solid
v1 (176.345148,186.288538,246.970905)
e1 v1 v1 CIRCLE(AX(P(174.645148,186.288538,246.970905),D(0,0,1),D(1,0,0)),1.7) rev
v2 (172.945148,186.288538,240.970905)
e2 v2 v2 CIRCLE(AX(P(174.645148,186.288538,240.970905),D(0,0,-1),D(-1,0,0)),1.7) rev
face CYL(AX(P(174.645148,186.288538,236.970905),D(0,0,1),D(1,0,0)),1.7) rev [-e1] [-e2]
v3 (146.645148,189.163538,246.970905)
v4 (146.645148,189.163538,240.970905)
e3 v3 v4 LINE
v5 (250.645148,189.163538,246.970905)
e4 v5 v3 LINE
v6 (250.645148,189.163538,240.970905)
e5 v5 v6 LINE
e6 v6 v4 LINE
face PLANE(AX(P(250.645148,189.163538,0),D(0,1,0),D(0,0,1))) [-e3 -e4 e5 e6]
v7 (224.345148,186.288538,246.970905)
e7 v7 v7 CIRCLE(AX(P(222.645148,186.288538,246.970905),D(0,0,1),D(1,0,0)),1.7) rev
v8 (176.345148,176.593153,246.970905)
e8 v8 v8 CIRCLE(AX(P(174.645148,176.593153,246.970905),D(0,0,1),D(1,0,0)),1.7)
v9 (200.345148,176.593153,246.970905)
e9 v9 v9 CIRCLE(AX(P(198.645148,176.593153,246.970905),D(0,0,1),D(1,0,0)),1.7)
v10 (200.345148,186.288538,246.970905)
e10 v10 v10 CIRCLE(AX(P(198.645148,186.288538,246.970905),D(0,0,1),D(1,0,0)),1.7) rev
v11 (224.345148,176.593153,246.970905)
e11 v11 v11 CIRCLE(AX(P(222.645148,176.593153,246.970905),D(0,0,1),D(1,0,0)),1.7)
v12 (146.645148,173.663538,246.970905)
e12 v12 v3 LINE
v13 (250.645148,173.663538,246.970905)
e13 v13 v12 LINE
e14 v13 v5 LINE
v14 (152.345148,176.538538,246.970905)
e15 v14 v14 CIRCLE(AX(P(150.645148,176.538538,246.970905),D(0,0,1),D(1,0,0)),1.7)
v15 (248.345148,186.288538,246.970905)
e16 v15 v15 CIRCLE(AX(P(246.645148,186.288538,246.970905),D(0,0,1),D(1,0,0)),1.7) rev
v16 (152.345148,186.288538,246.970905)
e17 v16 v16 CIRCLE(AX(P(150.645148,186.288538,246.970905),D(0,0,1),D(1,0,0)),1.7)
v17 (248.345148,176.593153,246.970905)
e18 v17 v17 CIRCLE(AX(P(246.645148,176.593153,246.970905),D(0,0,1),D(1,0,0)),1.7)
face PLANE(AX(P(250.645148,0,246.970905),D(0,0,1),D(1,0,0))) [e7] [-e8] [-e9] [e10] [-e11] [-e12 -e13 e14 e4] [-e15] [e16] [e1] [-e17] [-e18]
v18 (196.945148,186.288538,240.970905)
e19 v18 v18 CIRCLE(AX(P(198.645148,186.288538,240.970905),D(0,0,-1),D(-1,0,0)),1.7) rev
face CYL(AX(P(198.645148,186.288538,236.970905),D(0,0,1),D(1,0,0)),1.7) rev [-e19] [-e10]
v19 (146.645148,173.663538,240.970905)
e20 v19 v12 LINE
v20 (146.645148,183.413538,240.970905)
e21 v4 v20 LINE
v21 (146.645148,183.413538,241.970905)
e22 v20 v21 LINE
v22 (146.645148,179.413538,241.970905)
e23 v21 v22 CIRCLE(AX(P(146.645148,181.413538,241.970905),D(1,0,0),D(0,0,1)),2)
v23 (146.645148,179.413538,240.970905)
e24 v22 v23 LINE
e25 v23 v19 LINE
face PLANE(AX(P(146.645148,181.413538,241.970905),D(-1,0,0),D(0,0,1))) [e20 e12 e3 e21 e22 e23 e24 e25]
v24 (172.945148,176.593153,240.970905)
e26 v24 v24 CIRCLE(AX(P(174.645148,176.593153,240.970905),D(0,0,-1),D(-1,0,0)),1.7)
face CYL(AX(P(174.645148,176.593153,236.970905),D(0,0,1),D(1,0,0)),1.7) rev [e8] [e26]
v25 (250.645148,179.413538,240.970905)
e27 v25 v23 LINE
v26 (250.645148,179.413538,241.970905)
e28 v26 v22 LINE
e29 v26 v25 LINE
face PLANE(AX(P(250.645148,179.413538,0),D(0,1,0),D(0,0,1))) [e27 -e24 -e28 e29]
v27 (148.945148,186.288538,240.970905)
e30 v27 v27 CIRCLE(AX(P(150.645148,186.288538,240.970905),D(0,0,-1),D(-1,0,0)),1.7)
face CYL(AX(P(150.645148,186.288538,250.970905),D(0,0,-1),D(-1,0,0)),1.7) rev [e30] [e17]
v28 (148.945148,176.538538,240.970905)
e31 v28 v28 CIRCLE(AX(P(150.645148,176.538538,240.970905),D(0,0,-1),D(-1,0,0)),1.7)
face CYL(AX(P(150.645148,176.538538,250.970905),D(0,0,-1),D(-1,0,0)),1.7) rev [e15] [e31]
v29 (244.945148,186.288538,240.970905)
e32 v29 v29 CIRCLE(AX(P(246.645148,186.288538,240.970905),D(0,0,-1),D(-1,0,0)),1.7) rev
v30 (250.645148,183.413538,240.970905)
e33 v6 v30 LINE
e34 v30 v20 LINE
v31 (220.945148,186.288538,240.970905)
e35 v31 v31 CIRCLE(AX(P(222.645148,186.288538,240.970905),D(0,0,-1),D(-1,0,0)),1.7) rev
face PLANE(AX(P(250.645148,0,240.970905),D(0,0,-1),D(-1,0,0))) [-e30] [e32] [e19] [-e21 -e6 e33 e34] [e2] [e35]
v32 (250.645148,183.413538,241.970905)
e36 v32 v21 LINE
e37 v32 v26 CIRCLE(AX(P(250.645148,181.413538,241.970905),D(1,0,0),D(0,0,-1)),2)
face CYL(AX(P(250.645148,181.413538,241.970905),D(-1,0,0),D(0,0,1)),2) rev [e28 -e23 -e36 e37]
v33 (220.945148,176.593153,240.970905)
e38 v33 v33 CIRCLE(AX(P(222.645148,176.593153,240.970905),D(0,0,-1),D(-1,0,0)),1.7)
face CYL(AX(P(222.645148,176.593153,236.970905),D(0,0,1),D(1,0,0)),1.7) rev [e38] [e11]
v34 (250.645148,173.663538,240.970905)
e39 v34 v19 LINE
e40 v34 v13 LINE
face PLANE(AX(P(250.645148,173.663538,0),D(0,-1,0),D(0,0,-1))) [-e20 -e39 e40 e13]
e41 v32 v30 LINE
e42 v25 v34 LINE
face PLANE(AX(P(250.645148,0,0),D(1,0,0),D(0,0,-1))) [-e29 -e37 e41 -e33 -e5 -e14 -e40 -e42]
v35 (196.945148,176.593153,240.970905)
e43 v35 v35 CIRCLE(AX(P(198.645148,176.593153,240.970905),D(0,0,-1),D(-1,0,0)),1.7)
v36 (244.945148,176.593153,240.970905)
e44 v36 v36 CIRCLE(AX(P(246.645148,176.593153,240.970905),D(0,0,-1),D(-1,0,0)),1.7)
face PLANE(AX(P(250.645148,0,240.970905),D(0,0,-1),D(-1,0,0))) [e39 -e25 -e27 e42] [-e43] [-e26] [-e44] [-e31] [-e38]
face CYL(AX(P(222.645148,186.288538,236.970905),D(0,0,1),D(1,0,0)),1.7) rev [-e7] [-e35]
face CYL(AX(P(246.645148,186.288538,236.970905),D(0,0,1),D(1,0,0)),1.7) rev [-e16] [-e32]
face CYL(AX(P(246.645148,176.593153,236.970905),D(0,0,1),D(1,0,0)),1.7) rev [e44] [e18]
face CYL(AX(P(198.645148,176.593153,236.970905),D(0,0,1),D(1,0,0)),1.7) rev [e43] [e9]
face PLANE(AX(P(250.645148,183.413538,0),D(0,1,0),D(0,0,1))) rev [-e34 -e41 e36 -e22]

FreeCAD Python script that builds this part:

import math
import FreeCAD as App
import Part
import Sketcher
Q = App.Units.Quantity

doc = App.newDocument("Part")
body = doc.addObject("PartDesign::Body", "Body")

# Sketch on YZ plane
sketch1 = body.newObject("Sketcher::SketchObject", "Sketch")
sketch1.AttachmentSupport = (doc.getObject("YZ_Plane"), [""])
sketch1.MapMode = "FlatFace"
sketch1.AttachmentOffset = App.Placement(App.Vector(0, 0, 190.645148), App.Rotation())
sketch1.addGeometry([
    Part.LineSegment(App.Vector(189.2, 241, 0), App.Vector(189.2, 247, 0)),  # 0
    Part.LineSegment(App.Vector(189.2, 247, 0), App.Vector(173.7, 247, 0)),  # 1
    Part.LineSegment(App.Vector(173.7, 247, 0), App.Vector(173.7, 241, 0)),  # 2
    Part.LineSegment(App.Vector(173.7, 241, 0), App.Vector(179.4, 241, 0)),  # 3
    Part.LineSegment(App.Vector(179.4, 241, 0), App.Vector(179.4, 242, 0)),  # 4
    Part.ArcOfCircle(Part.Circle(App.Vector(181.4, 242, 0), App.Vector(0, 0, 1), 2), math.radians(0), math.radians(180)),  # 5
    Part.LineSegment(App.Vector(183.4, 242, 0), App.Vector(183.4, 241, 0)),  # 6
    Part.LineSegment(App.Vector(183.4, 241, 0), App.Vector(189.2, 241, 0)),  # 7
], False)
sketch1.addConstraint([
    Sketcher.Constraint("Coincident", 0, 2, 1, 1),
    Sketcher.Constraint("Coincident", 1, 2, 2, 1),
    Sketcher.Constraint("Coincident", 2, 2, 3, 1),
    Sketcher.Constraint("Coincident", 3, 2, 4, 1),
    Sketcher.Constraint("Tangent", 4, 2, 5, 2),
    Sketcher.Constraint("Tangent", 5, 1, 6, 1),
    Sketcher.Constraint("Coincident", 6, 2, 7, 1),
    Sketcher.Constraint("Coincident", 7, 2, 0, 1),
    Sketcher.Constraint("Vertical", 0),
    Sketcher.Constraint("Horizontal", 1),
    Sketcher.Constraint("Vertical", 2),
    Sketcher.Constraint("Horizontal", 3),
    Sketcher.Constraint("Vertical", 4),
    Sketcher.Constraint("Vertical", 6),
    Sketcher.Constraint("Horizontal", 7),
    Sketcher.Constraint("Horizontal", 3, 2, 6, 2),
    Sketcher.Constraint("Equal", 3, 7),
    Sketcher.Constraint("Radius", 5, Q("2 mm")),
    Sketcher.Constraint("DistanceY", 0, 1, 0, 2, Q("6 mm")),
    Sketcher.Constraint("DistanceY", 4, 1, 4, 2, Q("1 mm")),
    Sketcher.Constraint("DistanceX", 1, 2, 1, 1, Q("15.5 mm")),
    Sketcher.Constraint("DistanceX", -1, 1, 5, 3, Q("181.413538 mm")),
    Sketcher.Constraint("DistanceY", -1, 1, 5, 3, Q("241.970905 mm")),
])
pad1 = body.newObject("PartDesign::Pad", "Pad")
pad1.Profile = sketch1
pad1.Type = "TwoLengths"
pad1.Length = 60
pad1.Length2 = 20

# Sketch on XY plane
sketch2 = body.newObject("Sketcher::SketchObject", "Sketch001")
sketch2.AttachmentSupport = (doc.getObject("XY_Plane"), [""])
sketch2.MapMode = "FlatFace"
sketch2.AttachmentOffset = App.Placement(App.Vector(0, 0, 246.970905), App.Rotation())
sketch2.addGeometry([
    Part.Circle(App.Vector(246.6, 186.3, 0), App.Vector(0, 0, 1), 1.7),  # 0
    Part.Circle(App.Vector(222.6, 186.3, 0), App.Vector(0, 0, 1), 1.7),  # 1
    Part.Circle(App.Vector(198.6, 186.3, 0), App.Vector(0, 0, 1), 1.7),  # 2
    Part.Circle(App.Vector(174.6, 186.3, 0), App.Vector(0, 0, 1), 1.7),  # 3
    Part.Circle(App.Vector(246.6, 176.6, 0), App.Vector(0, 0, 1), 1.7),  # 4
    Part.Circle(App.Vector(222.6, 176.6, 0), App.Vector(0, 0, 1), 1.7),  # 5
    Part.Circle(App.Vector(198.6, 176.6, 0), App.Vector(0, 0, 1), 1.7),  # 6
    Part.Circle(App.Vector(174.6, 176.6, 0), App.Vector(0, 0, 1), 1.7),  # 7
], False)
sketch2.addConstraint([
    Sketcher.Constraint("Equal", 0, 1),
    Sketcher.Constraint("Equal", 1, 2),
    Sketcher.Constraint("Equal", 2, 3),
    Sketcher.Constraint("Equal", 3, 4),
    Sketcher.Constraint("Equal", 4, 5),
    Sketcher.Constraint("Equal", 5, 6),
    Sketcher.Constraint("Equal", 6, 7),
    Sketcher.Constraint("Horizontal", 0, 3, 1, 3),
    Sketcher.Constraint("Horizontal", 1, 3, 2, 3),
    Sketcher.Constraint("Horizontal", 2, 3, 3, 3),
    Sketcher.Constraint("Horizontal", 4, 3, 5, 3),
    Sketcher.Constraint("Horizontal", 5, 3, 6, 3),
    Sketcher.Constraint("Horizontal", 6, 3, 7, 3),
    Sketcher.Constraint("Vertical", 0, 3, 4, 3),
    Sketcher.Constraint("Vertical", 1, 3, 5, 3),
    Sketcher.Constraint("Vertical", 2, 3, 6, 3),
    Sketcher.Constraint("Vertical", 3, 3, 7, 3),
    Sketcher.Constraint("Diameter", 0, Q("3.4 mm")),
    Sketcher.Constraint("DistanceX", 1, 3, 0, 3, Q("24 mm")),
    Sketcher.Constraint("DistanceX", 2, 3, 1, 3, Q("24 mm")),
    Sketcher.Constraint("DistanceX", 3, 3, 2, 3, Q("24 mm")),
    Sketcher.Constraint("DistanceX", -1, 1, 0, 3, Q("246.645148 mm")),
    Sketcher.Constraint("DistanceY", -1, 1, 0, 3, Q("186.288538 mm")),
    Sketcher.Constraint("DistanceY", -1, 1, 4, 3, Q("176.593153 mm")),
])
pocket1 = body.newObject("PartDesign::Pocket", "Pocket")
pocket1.Profile = sketch2
pocket1.Length = 10

# Sketch on YZ plane
sketch3 = body.newObject("Sketcher::SketchObject", "Sketch002")
sketch3.AttachmentSupport = (doc.getObject("YZ_Plane"), [""])
sketch3.MapMode = "FlatFace"
sketch3.AttachmentOffset = App.Placement(App.Vector(0, 0, 146.645148), App.Rotation())
sketch3.addGeometry([
    Part.LineSegment(App.Vector(179.4, 242, 0), App.Vector(179.4, 241, 0)),  # 0
    Part.LineSegment(App.Vector(179.4, 241, 0), App.Vector(173.7, 241, 0)),  # 1
    Part.LineSegment(App.Vector(173.7, 241, 0), App.Vector(173.7, 247, 0)),  # 2
    Part.LineSegment(App.Vector(173.7, 247, 0), App.Vector(189.2, 247, 0)),  # 3
    Part.LineSegment(App.Vector(189.2, 247, 0), App.Vector(189.2, 241, 0)),  # 4
    Part.LineSegment(App.Vector(189.2, 241, 0), App.Vector(183.4, 241, 0)),  # 5
    Part.LineSegment(App.Vector(183.4, 241, 0), App.Vector(183.4, 242, 0)),  # 6
    Part.ArcOfCircle(Part.Circle(App.Vector(181.4, 242, 0), App.Vector(0, 0, 1), 2), math.radians(0), math.radians(180)),  # 7
], False)
sketch3.addConstraint([
    Sketcher.Constraint("Coincident", 0, 2, 1, 1),
    Sketcher.Constraint("Coincident", 1, 2, 2, 1),
    Sketcher.Constraint("Coincident", 2, 2, 3, 1),
    Sketcher.Constraint("Coincident", 3, 2, 4, 1),
    Sketcher.Constraint("Coincident", 4, 2, 5, 1),
    Sketcher.Constraint("Coincident", 5, 2, 6, 1),
    Sketcher.Constraint("Tangent", 6, 2, 7, 1),
    Sketcher.Constraint("Tangent", 7, 2, 0, 1),
    Sketcher.Constraint("Vertical", 0),
    Sketcher.Constraint("Horizontal", 1),
    Sketcher.Constraint("Vertical", 2),
    Sketcher.Constraint("Horizontal", 3),
    Sketcher.Constraint("Vertical", 4),
    Sketcher.Constraint("Horizontal", 5),
    Sketcher.Constraint("Vertical", 6),
    Sketcher.Constraint("Horizontal", 1, 2, 4, 2),
    Sketcher.Constraint("Equal", 1, 5),
    Sketcher.Constraint("Radius", 7, Q("2 mm")),
    Sketcher.Constraint("DistanceY", 0, 2, 0, 1, Q("1 mm")),
    Sketcher.Constraint("DistanceY", 2, 1, 2, 2, Q("6 mm")),
    Sketcher.Constraint("DistanceX", 3, 1, 3, 2, Q("15.5 mm")),
    Sketcher.Constraint("DistanceX", -1, 1, 7, 3, Q("181.413538 mm")),
    Sketcher.Constraint("DistanceY", -1, 1, 7, 3, Q("241.970905 mm")),
])
pad2 = body.newObject("PartDesign::Pad", "Pad001")
pad2.Profile = sketch3
pad2.Length = 24

# Sketch on XY plane
sketch4 = body.newObject("Sketcher::SketchObject", "Sketch003")
sketch4.AttachmentSupport = (doc.getObject("XY_Plane"), [""])
sketch4.MapMode = "FlatFace"
sketch4.AttachmentOffset = App.Placement(App.Vector(0, 0, 250.970905), App.Rotation())
sketch4.addGeometry([
    Part.Circle(App.Vector(174.6, 176.6, 0), App.Vector(0, 0, 1), 1.7),
    Part.Circle(App.Vector(174.6, 186.3, 0), App.Vector(0, 0, 1), 1.7),
    Part.Circle(App.Vector(150.6, 186.3, 0), App.Vector(0, 0, 1), 1.7),
    Part.Circle(App.Vector(150.6, 176.5, 0), App.Vector(0, 0, 1), 1.7),
], False)
sketch4.addConstraint([
    Sketcher.Constraint("Equal", 0, 1),
    Sketcher.Constraint("Equal", 1, 2),
    Sketcher.Constraint("Equal", 2, 3),
    Sketcher.Constraint("Horizontal", 1, 3, 2, 3),
    Sketcher.Constraint("Vertical", 0, 3, 1, 3),
    Sketcher.Constraint("Vertical", 2, 3, 3, 3),
    Sketcher.Constraint("Diameter", 0, Q("3.4 mm")),
    Sketcher.Constraint("DistanceX", 2, 3, 1, 3, Q("24 mm")),
    Sketcher.Constraint("DistanceY", 3, 3, 2, 3, Q("9.75 mm")),
    Sketcher.Constraint("DistanceX", -1, 1, 0, 3, Q("174.645148 mm")),
    Sketcher.Constraint("DistanceY", -1, 1, 1, 3, Q("186.288538 mm")),
    Sketcher.Constraint("DistanceY", -1, 1, 0, 3, Q("176.593153 mm")),
])
pocket2 = body.newObject("PartDesign::Pocket", "Pocket001")
pocket2.Profile = sketch4
pocket2.Length = 10

doc.recompute()
